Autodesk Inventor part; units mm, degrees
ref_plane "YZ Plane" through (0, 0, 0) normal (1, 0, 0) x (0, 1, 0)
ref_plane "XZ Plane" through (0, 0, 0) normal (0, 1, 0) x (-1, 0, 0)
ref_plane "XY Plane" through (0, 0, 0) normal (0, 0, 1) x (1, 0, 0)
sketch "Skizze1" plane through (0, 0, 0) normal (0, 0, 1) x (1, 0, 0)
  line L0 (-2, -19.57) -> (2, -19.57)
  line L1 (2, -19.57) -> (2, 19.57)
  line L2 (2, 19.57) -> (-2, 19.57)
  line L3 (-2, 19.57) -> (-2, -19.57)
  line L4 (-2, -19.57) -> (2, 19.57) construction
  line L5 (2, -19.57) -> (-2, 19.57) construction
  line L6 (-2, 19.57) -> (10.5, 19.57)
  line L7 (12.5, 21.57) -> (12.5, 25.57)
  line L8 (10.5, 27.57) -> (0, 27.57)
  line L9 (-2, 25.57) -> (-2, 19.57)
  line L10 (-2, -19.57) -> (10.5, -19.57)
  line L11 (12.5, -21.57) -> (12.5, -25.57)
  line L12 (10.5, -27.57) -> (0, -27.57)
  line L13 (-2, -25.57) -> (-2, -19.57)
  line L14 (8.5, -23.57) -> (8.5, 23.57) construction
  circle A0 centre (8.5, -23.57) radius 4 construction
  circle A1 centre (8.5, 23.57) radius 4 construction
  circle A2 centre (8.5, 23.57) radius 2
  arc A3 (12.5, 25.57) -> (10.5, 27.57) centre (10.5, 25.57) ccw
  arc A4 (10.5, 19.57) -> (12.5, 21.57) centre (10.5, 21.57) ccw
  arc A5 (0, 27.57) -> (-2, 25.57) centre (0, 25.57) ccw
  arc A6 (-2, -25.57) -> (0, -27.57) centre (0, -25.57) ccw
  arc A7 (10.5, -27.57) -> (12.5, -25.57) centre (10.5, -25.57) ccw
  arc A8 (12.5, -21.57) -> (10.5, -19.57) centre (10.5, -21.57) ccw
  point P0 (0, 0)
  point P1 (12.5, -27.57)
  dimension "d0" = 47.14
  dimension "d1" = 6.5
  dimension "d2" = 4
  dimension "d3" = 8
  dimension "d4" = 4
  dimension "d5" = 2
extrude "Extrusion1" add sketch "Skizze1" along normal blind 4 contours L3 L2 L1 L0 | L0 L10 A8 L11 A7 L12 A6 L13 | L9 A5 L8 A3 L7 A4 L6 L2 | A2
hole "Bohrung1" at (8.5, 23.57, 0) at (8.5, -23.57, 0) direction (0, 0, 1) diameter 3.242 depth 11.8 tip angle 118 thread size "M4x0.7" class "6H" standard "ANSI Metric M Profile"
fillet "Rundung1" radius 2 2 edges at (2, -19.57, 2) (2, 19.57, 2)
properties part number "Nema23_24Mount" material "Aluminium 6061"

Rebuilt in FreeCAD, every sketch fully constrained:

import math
import FreeCAD as App
import Part
import Sketcher
from FreeCAD import Vector
Q = App.Units.Quantity


def edges_at(feature, points):
    """Names of the edges that pass closest to the given points."""
    edges = feature.Shape.Edges
    near = lambda p: min(range(len(edges)), key=lambda i: edges[i].distToShape(Part.Vertex(*p))[0])
    return sorted({f"Edge{near(p) + 1}" for p in points})

doc = App.newDocument("Part")
params = doc.addObject("Spreadsheet::Sheet", "Params")
for row, (alias, value) in enumerate([
    ("sketch1_radius", "2 mm"),
    ("sketch1_height", "4 mm"),
    ("sketch1_width", "10.5 mm"),
    ("pad1_length", "4 mm"),
    ("hole_diameter", "3.242 mm"),
    ("hole_depth", "11.8 mm"),
    ("fillet_radius", "2 mm"),
], start=1):
    params.set(f"A{row}", alias)
    params.set(f"B{row}", "=" + value)
    params.setAlias(f"B{row}", alias)

body = doc.addObject("PartDesign::Body", "Body")

sketch1 = body.newObject("Sketcher::SketchObject", "Sketch")
sketch1.AttachmentSupport = (doc.getObject("XY_Plane"), [""])
sketch1.MapMode = "FlatFace"
sketch1.addGeometry([
    Part.ArcOfCircle(Part.Circle(Vector(0, -25.6, 0), Vector(0, 0, 1), 2), math.radians(180), math.radians(270)),
    Part.LineSegment(Vector(0, -27.6, 0), Vector(10.5, -27.6, 0)),
    Part.ArcOfCircle(Part.Circle(Vector(10.5, -25.6, 0), Vector(0, 0, 1), 2), math.radians(-90), math.radians(0)),
    Part.LineSegment(Vector(12.5, -25.6, 0), Vector(12.5, -21.6, 0)),
    Part.ArcOfCircle(Part.Circle(Vector(10.5, -21.6, 0), Vector(0, 0, 1), 2), math.radians(0), math.radians(90)),
    Part.LineSegment(Vector(10.5, -19.6, 0), Vector(2, -19.6, 0)),
    Part.LineSegment(Vector(2, -19.6, 0), Vector(2, 19.6, 0)),
    Part.LineSegment(Vector(2, 19.6, 0), Vector(10.5, 19.6, 0)),
    Part.ArcOfCircle(Part.Circle(Vector(10.5, 21.6, 0), Vector(0, 0, 1), 2), math.radians(-90), math.radians(0)),
    Part.LineSegment(Vector(12.5, 21.6, 0), Vector(12.5, 25.6, 0)),
    Part.ArcOfCircle(Part.Circle(Vector(10.5, 25.6, 0), Vector(0, 0, 1), 2), math.radians(0), math.radians(90)),
    Part.LineSegment(Vector(10.5, 27.6, 0), Vector(0, 27.6, 0)),
    Part.ArcOfCircle(Part.Circle(Vector(0, 25.6, 0), Vector(0, 0, 1), 2), math.radians(90), math.radians(180)),
    Part.LineSegment(Vector(-2, 25.6, 0), Vector(-2, -25.6, 0)),
], False)
sketch1.addConstraint([
    Sketcher.Constraint("Tangent", 0, 2, 1, 1),
    Sketcher.Constraint("Tangent", 1, 2, 2, 1),
    Sketcher.Constraint("Tangent", 2, 2, 3, 1),
    Sketcher.Constraint("Tangent", 3, 2, 4, 1),
    Sketcher.Constraint("Tangent", 4, 2, 5, 1),
    Sketcher.Constraint("Coincident", 5, 2, 6, 1),
    Sketcher.Constraint("Coincident", 6, 2, 7, 1),
    Sketcher.Constraint("Tangent", 7, 2, 8, 1),
    Sketcher.Constraint("Tangent", 8, 2, 9, 1),
    Sketcher.Constraint("Tangent", 9, 2, 10, 1),
    Sketcher.Constraint("Tangent", 10, 2, 11, 1),
    Sketcher.Constraint("Tangent", 11, 2, 12, 1),
    Sketcher.Constraint("Tangent", 12, 2, 13, 1),
    Sketcher.Constraint("Tangent", 13, 2, 0, 1),
    Sketcher.Constraint("Horizontal", 1),
    Sketcher.Constraint("Vertical", 3),
    Sketcher.Constraint("Horizontal", 5),
    Sketcher.Constraint("Vertical", 6),
    Sketcher.Constraint("Horizontal", 7),
    Sketcher.Constraint("Vertical", 9),
    Sketcher.Constraint("Horizontal", 11),
    Sketcher.Constraint("Vertical", 13),
    Sketcher.Constraint("Equal", 0, 2),
    Sketcher.Constraint("Equal", 2, 4),
    Sketcher.Constraint("Equal", 4, 8),
    Sketcher.Constraint("Equal", 8, 10),
    Sketcher.Constraint("Equal", 10, 12),
    Sketcher.Constraint("Symmetric", 0, 3, 12, 3, -1, 1),
    Sketcher.Constraint("Symmetric", 4, 3, 8, 3, -1),
    Sketcher.Constraint("Radius", 0, Q("2 mm")),
    Sketcher.Constraint("DistanceY", 3, 1, 3, 2, Q("4 mm")),
    Sketcher.Constraint("DistanceX", -1, 1, 5, 2, Q("2 mm")),
    Sketcher.Constraint("DistanceY", 2, 3, 8, 3, Q("47.14 mm")),
    Sketcher.Constraint("DistanceX", 1, 1, 1, 2, Q("10.5 mm")),
])
sketch1.setExpression("Constraints[29]", "Params.sketch1_radius")
sketch1.setExpression("Constraints[30]", "Params.sketch1_height")
sketch1.setExpression("Constraints[33]", "Params.sketch1_width")
pad1 = body.newObject("PartDesign::Pad", "Pad")
pad1.Profile = sketch1
pad1.setExpression("Length", "Params.pad1_length")

sketch2 = body.newObject("Sketcher::SketchObject", "Sketch001")
sketch2.AttachmentSupport = (doc.getObject("XY_Plane"), [""])
sketch2.MapMode = "FlatFace"
sketch2.addGeometry([
    Part.Circle(Vector(8.5, 23.6, 0), Vector(0, 0, 1), 1.6),
    Part.Circle(Vector(8.5, -23.6, 0), Vector(0, 0, 1), 1.6),
], False)
sketch2.addConstraint([
    Sketcher.Constraint("Equal", 0, 1),
    Sketcher.Constraint("Symmetric", 0, 3, 1, 3, -1),
    Sketcher.Constraint("Diameter", 0, Q("3.242 mm")),
    Sketcher.Constraint("DistanceX", -1, 1, 0, 3, Q("8.5 mm")),
    Sketcher.Constraint("DistanceY", -1, 1, 0, 3, Q("23.57 mm")),
])
doc.recompute()
hole = body.newObject("PartDesign::Hole", "Hole")
hole.Profile = sketch2
hole.ThreadType = "None"
hole.setExpression("Diameter", "Params.hole_diameter")
hole.DepthType = "Dimension"
hole.setExpression("Depth", "Params.hole_depth")
hole.DrillPoint = "Angled"
hole.DrillPointAngle = 118
hole.Reversed = True
doc.recompute()

fillet = body.newObject("PartDesign::Fillet", "Fillet")
fillet.Base = (hole, edges_at(hole, [(2, -19.57, 2), (2, 19.57, 2)]))
fillet.setExpression("Radius", "Params.fillet_radius")

doc.recompute()
